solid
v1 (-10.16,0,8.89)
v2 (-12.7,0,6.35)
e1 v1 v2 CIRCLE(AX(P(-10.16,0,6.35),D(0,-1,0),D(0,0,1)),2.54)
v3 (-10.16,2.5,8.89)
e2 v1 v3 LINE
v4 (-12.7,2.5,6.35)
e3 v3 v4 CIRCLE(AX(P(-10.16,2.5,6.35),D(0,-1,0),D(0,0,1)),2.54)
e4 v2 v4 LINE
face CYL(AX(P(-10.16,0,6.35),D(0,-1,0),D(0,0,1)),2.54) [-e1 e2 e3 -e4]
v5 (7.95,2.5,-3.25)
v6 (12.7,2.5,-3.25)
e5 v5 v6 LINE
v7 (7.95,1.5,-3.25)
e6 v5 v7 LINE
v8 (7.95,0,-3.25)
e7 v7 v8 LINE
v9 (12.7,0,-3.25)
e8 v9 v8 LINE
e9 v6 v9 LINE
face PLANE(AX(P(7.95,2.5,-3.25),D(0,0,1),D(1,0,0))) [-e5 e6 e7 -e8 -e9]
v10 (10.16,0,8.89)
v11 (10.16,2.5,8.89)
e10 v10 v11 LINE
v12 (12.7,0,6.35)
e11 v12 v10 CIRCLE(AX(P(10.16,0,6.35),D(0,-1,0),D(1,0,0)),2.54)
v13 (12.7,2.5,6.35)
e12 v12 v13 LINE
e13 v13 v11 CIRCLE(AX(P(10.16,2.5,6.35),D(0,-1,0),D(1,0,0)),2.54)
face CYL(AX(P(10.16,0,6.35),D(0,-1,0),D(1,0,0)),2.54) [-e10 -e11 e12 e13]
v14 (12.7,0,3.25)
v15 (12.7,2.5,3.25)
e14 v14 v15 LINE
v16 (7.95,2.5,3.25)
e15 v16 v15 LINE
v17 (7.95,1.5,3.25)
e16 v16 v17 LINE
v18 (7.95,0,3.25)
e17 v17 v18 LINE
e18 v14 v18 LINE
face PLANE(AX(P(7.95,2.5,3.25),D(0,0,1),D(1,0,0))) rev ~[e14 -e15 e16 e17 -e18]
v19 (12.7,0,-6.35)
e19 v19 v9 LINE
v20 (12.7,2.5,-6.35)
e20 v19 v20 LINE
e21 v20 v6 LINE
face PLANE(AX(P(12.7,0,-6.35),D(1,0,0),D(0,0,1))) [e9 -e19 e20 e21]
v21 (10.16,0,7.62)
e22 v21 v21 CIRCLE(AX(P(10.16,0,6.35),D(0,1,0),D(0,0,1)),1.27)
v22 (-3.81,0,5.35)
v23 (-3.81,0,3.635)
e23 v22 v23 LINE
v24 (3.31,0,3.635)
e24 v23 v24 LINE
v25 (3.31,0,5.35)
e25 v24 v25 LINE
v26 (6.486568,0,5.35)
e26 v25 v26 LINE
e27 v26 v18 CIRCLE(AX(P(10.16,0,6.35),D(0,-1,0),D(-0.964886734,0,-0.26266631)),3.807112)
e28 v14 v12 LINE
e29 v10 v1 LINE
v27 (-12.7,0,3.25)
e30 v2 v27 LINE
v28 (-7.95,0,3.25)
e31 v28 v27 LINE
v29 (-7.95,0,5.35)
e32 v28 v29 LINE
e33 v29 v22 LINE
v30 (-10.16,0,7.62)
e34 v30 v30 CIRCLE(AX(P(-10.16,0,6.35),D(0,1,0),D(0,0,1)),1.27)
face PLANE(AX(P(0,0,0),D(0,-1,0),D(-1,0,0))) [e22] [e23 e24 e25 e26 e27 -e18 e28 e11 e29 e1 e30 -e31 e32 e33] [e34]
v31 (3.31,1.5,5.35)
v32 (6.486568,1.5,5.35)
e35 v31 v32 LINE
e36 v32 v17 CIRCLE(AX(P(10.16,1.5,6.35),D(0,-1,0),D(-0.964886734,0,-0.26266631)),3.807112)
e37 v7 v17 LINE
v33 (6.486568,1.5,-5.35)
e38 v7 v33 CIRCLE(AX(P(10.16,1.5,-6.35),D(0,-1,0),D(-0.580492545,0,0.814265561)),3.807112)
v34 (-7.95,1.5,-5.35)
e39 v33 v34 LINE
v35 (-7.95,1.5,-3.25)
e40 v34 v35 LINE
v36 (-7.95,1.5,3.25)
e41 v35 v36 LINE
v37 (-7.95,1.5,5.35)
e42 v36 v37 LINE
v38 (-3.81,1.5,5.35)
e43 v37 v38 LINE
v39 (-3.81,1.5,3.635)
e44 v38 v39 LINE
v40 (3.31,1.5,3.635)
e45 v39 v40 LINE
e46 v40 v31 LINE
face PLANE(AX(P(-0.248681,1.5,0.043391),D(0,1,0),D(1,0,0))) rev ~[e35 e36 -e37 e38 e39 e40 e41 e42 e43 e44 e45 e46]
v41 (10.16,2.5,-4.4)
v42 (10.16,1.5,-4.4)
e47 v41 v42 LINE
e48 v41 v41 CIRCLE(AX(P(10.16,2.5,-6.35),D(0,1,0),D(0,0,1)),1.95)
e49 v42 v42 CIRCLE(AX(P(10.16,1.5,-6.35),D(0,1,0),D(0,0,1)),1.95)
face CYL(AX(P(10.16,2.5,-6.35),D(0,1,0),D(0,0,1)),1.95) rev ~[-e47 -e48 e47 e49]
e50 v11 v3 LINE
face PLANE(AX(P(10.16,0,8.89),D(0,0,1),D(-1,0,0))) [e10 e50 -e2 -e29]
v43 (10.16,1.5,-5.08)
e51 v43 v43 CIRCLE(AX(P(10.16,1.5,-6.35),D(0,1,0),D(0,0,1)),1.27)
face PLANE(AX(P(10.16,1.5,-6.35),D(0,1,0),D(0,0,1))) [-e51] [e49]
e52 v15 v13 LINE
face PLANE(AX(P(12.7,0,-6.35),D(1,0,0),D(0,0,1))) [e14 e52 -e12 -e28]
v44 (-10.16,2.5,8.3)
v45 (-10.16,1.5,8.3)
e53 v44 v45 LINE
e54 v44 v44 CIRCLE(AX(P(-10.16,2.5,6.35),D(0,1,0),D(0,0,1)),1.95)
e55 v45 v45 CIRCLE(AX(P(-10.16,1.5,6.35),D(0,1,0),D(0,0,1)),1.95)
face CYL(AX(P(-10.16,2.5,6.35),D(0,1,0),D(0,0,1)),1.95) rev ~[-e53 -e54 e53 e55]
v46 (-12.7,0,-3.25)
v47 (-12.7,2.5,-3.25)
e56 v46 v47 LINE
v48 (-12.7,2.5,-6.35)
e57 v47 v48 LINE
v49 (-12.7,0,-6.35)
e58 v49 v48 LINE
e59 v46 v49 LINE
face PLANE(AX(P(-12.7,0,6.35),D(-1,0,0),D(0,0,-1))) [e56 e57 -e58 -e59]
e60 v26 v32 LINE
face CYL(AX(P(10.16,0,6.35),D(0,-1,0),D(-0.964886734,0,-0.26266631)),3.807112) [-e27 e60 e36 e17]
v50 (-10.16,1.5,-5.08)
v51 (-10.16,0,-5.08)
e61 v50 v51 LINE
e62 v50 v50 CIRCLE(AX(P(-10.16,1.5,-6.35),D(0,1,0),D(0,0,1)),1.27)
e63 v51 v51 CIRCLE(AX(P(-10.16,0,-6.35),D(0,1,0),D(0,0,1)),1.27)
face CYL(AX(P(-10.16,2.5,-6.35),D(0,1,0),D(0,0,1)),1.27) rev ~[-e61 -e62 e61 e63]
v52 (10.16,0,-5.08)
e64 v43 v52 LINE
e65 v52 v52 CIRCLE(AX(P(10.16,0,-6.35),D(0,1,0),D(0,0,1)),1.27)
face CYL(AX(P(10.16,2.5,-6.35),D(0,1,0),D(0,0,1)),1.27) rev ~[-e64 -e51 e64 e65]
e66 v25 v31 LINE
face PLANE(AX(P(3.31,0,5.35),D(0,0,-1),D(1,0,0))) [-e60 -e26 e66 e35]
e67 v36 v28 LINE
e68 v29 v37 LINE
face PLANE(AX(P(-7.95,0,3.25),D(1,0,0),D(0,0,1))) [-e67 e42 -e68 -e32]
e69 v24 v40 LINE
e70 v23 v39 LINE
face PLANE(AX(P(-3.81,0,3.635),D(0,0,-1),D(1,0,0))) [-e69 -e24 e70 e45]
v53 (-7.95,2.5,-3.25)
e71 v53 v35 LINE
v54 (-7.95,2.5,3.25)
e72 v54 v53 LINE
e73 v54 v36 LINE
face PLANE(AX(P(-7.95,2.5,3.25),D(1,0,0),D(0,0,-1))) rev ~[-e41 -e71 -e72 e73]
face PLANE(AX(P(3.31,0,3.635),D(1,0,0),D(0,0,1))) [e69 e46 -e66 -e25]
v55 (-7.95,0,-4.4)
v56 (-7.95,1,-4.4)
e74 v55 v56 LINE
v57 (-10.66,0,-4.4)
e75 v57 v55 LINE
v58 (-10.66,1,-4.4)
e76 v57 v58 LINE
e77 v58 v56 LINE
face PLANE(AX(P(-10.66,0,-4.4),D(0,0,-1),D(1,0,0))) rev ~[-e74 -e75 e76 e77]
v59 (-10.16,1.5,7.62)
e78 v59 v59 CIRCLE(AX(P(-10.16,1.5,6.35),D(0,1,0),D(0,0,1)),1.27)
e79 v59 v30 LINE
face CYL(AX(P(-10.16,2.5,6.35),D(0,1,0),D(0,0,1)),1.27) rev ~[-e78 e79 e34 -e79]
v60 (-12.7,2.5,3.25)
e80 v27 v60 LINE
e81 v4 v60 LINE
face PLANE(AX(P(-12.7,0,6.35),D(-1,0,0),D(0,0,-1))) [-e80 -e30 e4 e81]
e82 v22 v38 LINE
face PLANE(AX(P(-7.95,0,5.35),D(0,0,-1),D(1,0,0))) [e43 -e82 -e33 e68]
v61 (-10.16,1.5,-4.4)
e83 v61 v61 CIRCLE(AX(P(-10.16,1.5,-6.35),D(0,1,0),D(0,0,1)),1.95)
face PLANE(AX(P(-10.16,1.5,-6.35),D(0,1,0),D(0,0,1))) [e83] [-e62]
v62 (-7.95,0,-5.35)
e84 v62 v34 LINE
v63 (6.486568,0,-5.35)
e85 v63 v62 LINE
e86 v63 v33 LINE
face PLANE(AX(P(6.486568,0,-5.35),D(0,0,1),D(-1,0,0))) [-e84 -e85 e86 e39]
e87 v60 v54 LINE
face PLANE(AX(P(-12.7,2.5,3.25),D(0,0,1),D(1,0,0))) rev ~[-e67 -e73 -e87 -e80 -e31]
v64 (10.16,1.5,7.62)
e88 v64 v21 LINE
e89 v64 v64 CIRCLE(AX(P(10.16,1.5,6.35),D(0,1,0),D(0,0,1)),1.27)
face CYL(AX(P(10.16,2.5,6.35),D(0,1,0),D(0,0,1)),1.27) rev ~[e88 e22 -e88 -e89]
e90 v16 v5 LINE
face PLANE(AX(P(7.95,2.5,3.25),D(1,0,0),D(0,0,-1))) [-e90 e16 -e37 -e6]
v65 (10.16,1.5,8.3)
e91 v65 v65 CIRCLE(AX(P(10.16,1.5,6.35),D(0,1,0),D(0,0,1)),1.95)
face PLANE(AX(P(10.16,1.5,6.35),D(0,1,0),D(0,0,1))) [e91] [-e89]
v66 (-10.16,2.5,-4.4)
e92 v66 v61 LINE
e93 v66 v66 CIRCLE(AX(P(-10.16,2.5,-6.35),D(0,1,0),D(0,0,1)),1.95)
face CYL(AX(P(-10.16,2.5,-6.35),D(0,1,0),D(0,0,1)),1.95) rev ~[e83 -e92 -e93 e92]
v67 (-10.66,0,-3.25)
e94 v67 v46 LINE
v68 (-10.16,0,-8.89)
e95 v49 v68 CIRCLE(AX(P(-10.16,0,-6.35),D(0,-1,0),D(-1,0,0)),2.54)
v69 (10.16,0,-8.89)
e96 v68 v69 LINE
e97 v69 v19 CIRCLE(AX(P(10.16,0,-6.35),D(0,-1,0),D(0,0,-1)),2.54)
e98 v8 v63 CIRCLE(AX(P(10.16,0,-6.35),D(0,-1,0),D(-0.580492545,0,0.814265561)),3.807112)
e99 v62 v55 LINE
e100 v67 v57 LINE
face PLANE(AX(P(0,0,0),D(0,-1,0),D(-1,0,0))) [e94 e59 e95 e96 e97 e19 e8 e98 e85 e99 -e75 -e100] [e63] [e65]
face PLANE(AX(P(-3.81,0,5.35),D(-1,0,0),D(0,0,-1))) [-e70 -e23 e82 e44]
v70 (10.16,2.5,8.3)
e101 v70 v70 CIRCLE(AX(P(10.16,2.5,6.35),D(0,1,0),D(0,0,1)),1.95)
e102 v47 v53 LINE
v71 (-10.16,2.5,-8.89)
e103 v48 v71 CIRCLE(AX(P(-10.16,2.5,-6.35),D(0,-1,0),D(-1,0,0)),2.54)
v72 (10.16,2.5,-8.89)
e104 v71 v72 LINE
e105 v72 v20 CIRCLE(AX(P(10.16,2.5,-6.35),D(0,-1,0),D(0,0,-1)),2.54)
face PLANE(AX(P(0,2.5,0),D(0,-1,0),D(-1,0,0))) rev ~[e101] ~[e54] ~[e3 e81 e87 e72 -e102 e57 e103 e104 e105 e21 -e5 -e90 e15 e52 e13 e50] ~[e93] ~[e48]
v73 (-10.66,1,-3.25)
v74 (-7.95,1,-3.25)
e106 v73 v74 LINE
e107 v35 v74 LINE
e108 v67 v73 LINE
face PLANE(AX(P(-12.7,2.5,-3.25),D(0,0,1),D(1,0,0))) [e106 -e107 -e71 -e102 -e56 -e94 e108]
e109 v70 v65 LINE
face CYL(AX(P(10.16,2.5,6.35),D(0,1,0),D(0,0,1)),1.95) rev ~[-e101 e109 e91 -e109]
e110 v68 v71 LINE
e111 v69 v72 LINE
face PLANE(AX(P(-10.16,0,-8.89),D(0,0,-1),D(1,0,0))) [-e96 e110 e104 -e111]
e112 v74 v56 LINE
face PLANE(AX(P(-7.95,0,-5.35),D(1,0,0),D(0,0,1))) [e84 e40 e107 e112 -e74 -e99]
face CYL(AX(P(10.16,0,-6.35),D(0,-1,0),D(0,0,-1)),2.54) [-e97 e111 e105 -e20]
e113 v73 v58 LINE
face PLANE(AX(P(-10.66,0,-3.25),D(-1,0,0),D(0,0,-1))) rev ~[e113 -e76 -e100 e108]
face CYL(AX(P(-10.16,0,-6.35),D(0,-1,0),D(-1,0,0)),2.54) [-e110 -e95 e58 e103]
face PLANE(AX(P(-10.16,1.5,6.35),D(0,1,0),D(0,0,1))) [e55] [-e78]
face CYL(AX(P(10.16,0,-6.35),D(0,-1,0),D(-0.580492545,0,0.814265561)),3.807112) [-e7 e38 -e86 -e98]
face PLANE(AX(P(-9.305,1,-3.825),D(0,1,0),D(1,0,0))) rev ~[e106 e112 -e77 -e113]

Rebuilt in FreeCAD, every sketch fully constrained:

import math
import FreeCAD as App
import Part
import Sketcher
Q = App.Units.Quantity

doc = App.newDocument("Part")
params = doc.addObject("Spreadsheet::Sheet", "Params")
for row, (alias, value) in enumerate([
    ("sketch1_radius", "2.54 mm"),
    ("sketch1_height", "12.7 mm"),
    ("sketch1_width", "20.32 mm"),
    ("pad1_length", "2.5 mm"),
    ("sketch2_diameter", "2.54 mm"),
    ("sketch2_height", "6.5 mm"),
    ("sketch2_width", "4.75 mm"),
    ("sketch3_height", "6.5 mm"),
    ("sketch3_height2", "2.1 mm"),
    ("sketch3_width", "7.12 mm"),
    ("sketch3_width2", "4.75 mm"),
    ("sketch3_width3", "4.14 mm"),
    ("pocket2_length", "1.5 mm"),
    ("sketch4_diameter", "3.9 mm"),
    ("pocket3_length", "1 mm"),
    ("sketch5_width", "2.71 mm"),
    ("sketch5_height", "1.15 mm"),
    ("pocket4_length", "1 mm"),
], start=1):
    params.set(f"A{row}", alias)
    params.set(f"B{row}", "=" + value)
    params.setAlias(f"B{row}", alias)

body = doc.addObject("PartDesign::Body", "Body")

# Sketch on XZ plane
sketch1 = body.newObject("Sketcher::SketchObject", "Sketch")
sketch1.AttachmentSupport = (doc.getObject("XZ_Plane"), [""])
sketch1.MapMode = "FlatFace"
sketch1.addGeometry([
    Part.LineSegment(App.Vector(10.2, -8.9, 0), App.Vector(-10.2, -8.9, 0)),  # 0
    Part.ArcOfCircle(Part.Circle(App.Vector(-10.2, -6.3, 0), App.Vector(0, 0, 1), 2.5), math.radians(-180), math.radians(-90)),  # 1
    Part.LineSegment(App.Vector(-12.7, -6.3, 0), App.Vector(-12.7, 6.3, 0)),  # 2
    Part.ArcOfCircle(Part.Circle(App.Vector(-10.2, 6.3, 0), App.Vector(0, 0, 1), 2.5), math.radians(90), math.radians(180)),  # 3
    Part.LineSegment(App.Vector(-10.2, 8.9, 0), App.Vector(10.2, 8.9, 0)),  # 4
    Part.ArcOfCircle(Part.Circle(App.Vector(10.2, 6.3, 0), App.Vector(0, 0, 1), 2.5), math.radians(0), math.radians(90)),  # 5
    Part.LineSegment(App.Vector(12.7, 6.3, 0), App.Vector(12.7, -6.3, 0)),  # 6
    Part.ArcOfCircle(Part.Circle(App.Vector(10.2, -6.3, 0), App.Vector(0, 0, 1), 2.5), math.radians(-90), math.radians(0)),  # 7
], False)
sketch1.addConstraint([
    Sketcher.Constraint("Tangent", 0, 2, 1, 2),
    Sketcher.Constraint("Tangent", 1, 1, 2, 1),
    Sketcher.Constraint("Tangent", 2, 2, 3, 2),
    Sketcher.Constraint("Tangent", 3, 1, 4, 1),
    Sketcher.Constraint("Tangent", 4, 2, 5, 2),
    Sketcher.Constraint("Tangent", 5, 1, 6, 1),
    Sketcher.Constraint("Tangent", 6, 2, 7, 2),
    Sketcher.Constraint("Tangent", 7, 1, 0, 1),
    Sketcher.Constraint("Horizontal", 0),
    Sketcher.Constraint("Vertical", 2),
    Sketcher.Constraint("Horizontal", 4),
    Sketcher.Constraint("Vertical", 6),
    Sketcher.Constraint("Equal", 1, 3),
    Sketcher.Constraint("Equal", 3, 5),
    Sketcher.Constraint("Equal", 5, 7),
    Sketcher.Constraint("Symmetric", 1, 3, 5, 3, -1, 1),
    Sketcher.Constraint("Radius", 1, Q("2.54 mm")),
    Sketcher.Constraint("DistanceY", 2, 1, 2, 2, Q("12.7 mm")),
    Sketcher.Constraint("DistanceX", 0, 2, 0, 1, Q("20.32 mm")),
])
sketch1.setExpression("Constraints[16]", "Params.sketch1_radius")
sketch1.setExpression("Constraints[17]", "Params.sketch1_height")
sketch1.setExpression("Constraints[18]", "Params.sketch1_width")
pad1 = body.newObject("PartDesign::Pad", "Pad")
pad1.Profile = sketch1
pad1.setExpression("Length", "Params.pad1_length")
pad1.Reversed = True

# Sketch on XZ plane
sketch2 = body.newObject("Sketcher::SketchObject", "Sketch001")
sketch2.AttachmentSupport = (doc.getObject("XZ_Plane"), [""])
sketch2.MapMode = "FlatFace"
sketch2.AttachmentOffset = App.Placement(App.Vector(0, 0, -2.5), App.Rotation())
sketch2.addGeometry([
    Part.Circle(App.Vector(-10.2, -6.3, 0), App.Vector(0, 0, 1), 1.3),  # 0
    Part.Circle(App.Vector(10.2, -6.3, 0), App.Vector(0, 0, 1), 1.3),  # 1
    Part.Circle(App.Vector(10.2, 6.3, 0), App.Vector(0, 0, 1), 1.3),  # 2
    Part.Circle(App.Vector(-10.2, 6.3, 0), App.Vector(0, 0, 1), 1.3),  # 3
    Part.LineSegment(App.Vector(8, -3.2, 0), App.Vector(8, 3.2, 0)),  # 4
    Part.LineSegment(App.Vector(8, 3.2, 0), App.Vector(12.7, 3.2, 0)),  # 5
    Part.LineSegment(App.Vector(12.7, 3.2, 0), App.Vector(12.7, -3.2, 0)),  # 6
    Part.LineSegment(App.Vector(12.7, -3.2, 0), App.Vector(8, -3.2, 0)),  # 7
    Part.LineSegment(App.Vector(-12.7, -3.2, 0), App.Vector(-12.7, 3.2, 0)),  # 8
    Part.LineSegment(App.Vector(-12.7, 3.2, 0), App.Vector(-8, 3.2, 0)),  # 9
    Part.LineSegment(App.Vector(-8, 3.2, 0), App.Vector(-8, -3.2, 0)),  # 10
    Part.LineSegment(App.Vector(-8, -3.2, 0), App.Vector(-12.7, -3.2, 0)),  # 11
], False)
sketch2.addConstraint([
    Sketcher.Constraint("Coincident", 4, 2, 5, 1),
    Sketcher.Constraint("Coincident", 5, 2, 6, 1),
    Sketcher.Constraint("Coincident", 6, 2, 7, 1),
    Sketcher.Constraint("Coincident", 7, 2, 4, 1),
    Sketcher.Constraint("Coincident", 8, 2, 9, 1),
    Sketcher.Constraint("Coincident", 9, 2, 10, 1),
    Sketcher.Constraint("Coincident", 10, 2, 11, 1),
    Sketcher.Constraint("Coincident", 11, 2, 8, 1),
    Sketcher.Constraint("Vertical", 4),
    Sketcher.Constraint("Horizontal", 5),
    Sketcher.Constraint("Vertical", 6),
    Sketcher.Constraint("Horizontal", 7),
    Sketcher.Constraint("Vertical", 8),
    Sketcher.Constraint("Horizontal", 9),
    Sketcher.Constraint("Vertical", 10),
    Sketcher.Constraint("Horizontal", 11),
    Sketcher.Constraint("Equal", 0, 1),
    Sketcher.Constraint("Equal", 1, 2),
    Sketcher.Constraint("Equal", 2, 3),
    Sketcher.Constraint("Symmetric", 0, 3, 2, 3, -1, 1),
    Sketcher.Constraint("Symmetric", 1, 3, 3, 3, -1, 1),
    Sketcher.Constraint("Symmetric", 6, 2, 8, 2, -1, 1),
    Sketcher.Constraint("Symmetric", 4, 2, 10, 2, -1, 1),
    Sketcher.Constraint("Symmetric", 0, 3, 1, 3, -2),
    Sketcher.Constraint("Horizontal", 5, 2, 8, 2),
    Sketcher.Constraint("Diameter", 0, Q("2.54 mm")),
    Sketcher.Constraint("DistanceY", 4, 1, 4, 2, Q("6.5 mm")),
    Sketcher.Constraint("DistanceX", 5, 1, 5, 2, Q("4.75 mm")),
    Sketcher.Constraint("DistanceX", -1, 1, 5, 2, Q("12.7 mm")),
    Sketcher.Constraint("DistanceY", 1, 3, 2, 3, Q("12.7 mm")),
    Sketcher.Constraint("DistanceX", 0, 3, -1, 1, Q("10.16 mm")),
])
sketch2.setExpression("Constraints[25]", "Params.sketch2_diameter")
sketch2.setExpression("Constraints[26]", "Params.sketch2_height")
sketch2.setExpression("Constraints[27]", "Params.sketch2_width")
pocket1 = body.newObject("PartDesign::Pocket", "Pocket")
pocket1.Profile = sketch2
pocket1.Type = "ThroughAll"
pocket1.Reversed = True

# Sketch on XZ plane
sketch3 = body.newObject("Sketcher::SketchObject", "Sketch002")
sketch3.AttachmentSupport = (doc.getObject("XZ_Plane"), [""])
sketch3.MapMode = "FlatFace"
sketch3.addGeometry([
    Part.LineSegment(App.Vector(-3.8, 5.3, 0), App.Vector(-3.8, 3.6, 0)),  # 0
    Part.LineSegment(App.Vector(-3.8, 3.6, 0), App.Vector(3.3, 3.6, 0)),  # 1
    Part.LineSegment(App.Vector(3.3, 3.6, 0), App.Vector(3.3, 5.3, 0)),  # 2
    Part.LineSegment(App.Vector(3.3, 5.3, 0), App.Vector(6.5, 5.3, 0)),  # 3
    Part.ArcOfCircle(Part.Circle(App.Vector(10.2, 6.3, 0), App.Vector(0, 0, 1), 3.8), math.radians(-165), math.radians(-125)),  # 4
    Part.LineSegment(App.Vector(8, 3.2, 0), App.Vector(12.7, 3.2, 0)),  # 5
    Part.LineSegment(App.Vector(12.7, 3.2, 0), App.Vector(12.7, -3.2, 0)),  # 6
    Part.LineSegment(App.Vector(12.7, -3.2, 0), App.Vector(8, -3.2, 0)),  # 7
    Part.ArcOfCircle(Part.Circle(App.Vector(10.2, -6.3, 0), App.Vector(0, 0, 1), 3.8), math.radians(125), math.radians(165)),  # 8
    Part.LineSegment(App.Vector(6.5, -5.3, 0), App.Vector(-8, -5.3, 0)),  # 9
    Part.LineSegment(App.Vector(-8, -5.3, 0), App.Vector(-8, -3.2, 0)),  # 10
    Part.LineSegment(App.Vector(-8, -3.2, 0), App.Vector(-12.7, -3.2, 0)),  # 11
    Part.LineSegment(App.Vector(-12.7, -3.2, 0), App.Vector(-12.7, 3.2, 0)),  # 12
    Part.LineSegment(App.Vector(-12.7, 3.2, 0), App.Vector(-8, 3.2, 0)),  # 13
    Part.LineSegment(App.Vector(-8, 3.2, 0), App.Vector(-8, 5.3, 0)),  # 14
    Part.LineSegment(App.Vector(-8, 5.3, 0), App.Vector(-3.8, 5.3, 0)),  # 15
], False)
sketch3.addConstraint([
    Sketcher.Constraint("Coincident", 0, 2, 1, 1),
    Sketcher.Constraint("Coincident", 1, 2, 2, 1),
    Sketcher.Constraint("Coincident", 2, 2, 3, 1),
    Sketcher.Constraint("Coincident", 3, 2, 4, 1),
    Sketcher.Constraint("Coincident", 4, 2, 5, 1),
    Sketcher.Constraint("Coincident", 5, 2, 6, 1),
    Sketcher.Constraint("Coincident", 6, 2, 7, 1),
    Sketcher.Constraint("Coincident", 7, 2, 8, 1),
    Sketcher.Constraint("Coincident", 8, 2, 9, 1),
    Sketcher.Constraint("Coincident", 9, 2, 10, 1),
    Sketcher.Constraint("Coincident", 10, 2, 11, 1),
    Sketcher.Constraint("Coincident", 11, 2, 12, 1),
    Sketcher.Constraint("Coincident", 12, 2, 13, 1),
    Sketcher.Constraint("Coincident", 13, 2, 14, 1),
    Sketcher.Constraint("Coincident", 14, 2, 15, 1),
    Sketcher.Constraint("Coincident", 15, 2, 0, 1),
    Sketcher.Constraint("Vertical", 0),
    Sketcher.Constraint("Horizontal", 1),
    Sketcher.Constraint("Vertical", 2),
    Sketcher.Constraint("Horizontal", 3),
    Sketcher.Constraint("Horizontal", 5),
    Sketcher.Constraint("Vertical", 6),
    Sketcher.Constraint("Horizontal", 7),
    Sketcher.Constraint("Horizontal", 9),
    Sketcher.Constraint("Vertical", 10),
    Sketcher.Constraint("Horizontal", 11),
    Sketcher.Constraint("Vertical", 12),
    Sketcher.Constraint("Horizontal", 13),
    Sketcher.Constraint("Vertical", 14),
    Sketcher.Constraint("Horizontal", 15),
    Sketcher.Constraint("Equal", 4, 8),
    Sketcher.Constraint("Symmetric", 4, 2, 10, 2, -1, 1),
    Sketcher.Constraint("Symmetric", 6, 2, 12, 2, -1, 1),
    Sketcher.Constraint("Symmetric", 7, 2, 10, 2, -2),
    Sketcher.Constraint("Symmetric", 3, 2, 8, 2, -1),
    Sketcher.Constraint("Symmetric", 9, 2, 14, 2, -1),
    Sketcher.Constraint("DistanceY", 6, 2, 6, 1, Q("6.5 mm")),
    Sketcher.Constraint("DistanceY", 10, 1, 10, 2, Q("2.1 mm")),
    Sketcher.Constraint("DistanceY", 2, 2, 4, 3, Q("1 mm")),
    Sketcher.Constraint("DistanceX", 1, 1, 1, 2, Q("7.12 mm")),
    Sketcher.Constraint("DistanceX", 5, 1, 5, 2, Q("4.75 mm")),
    Sketcher.Constraint("DistanceX", 15, 1, 15, 2, Q("4.14 mm")),
    Sketcher.Constraint("DistanceX", -1, 1, 5, 2, Q("12.7 mm")),
    Sketcher.Constraint("DistanceY", 0, 2, 0, 1, Q("1.715 mm")),
    Sketcher.Constraint("DistanceX", -1, 1, 4, 3, Q("10.16 mm")),
])
sketch3.setExpression("Constraints[36]", "Params.sketch3_height")
sketch3.setExpression("Constraints[37]", "Params.sketch3_height2")
sketch3.setExpression("Constraints[39]", "Params.sketch3_width")
sketch3.setExpression("Constraints[40]", "Params.sketch3_width2")
sketch3.setExpression("Constraints[41]", "Params.sketch3_width3")
pocket2 = body.newObject("PartDesign::Pocket", "Pocket001")
pocket2.Profile = sketch3
pocket2.setExpression("Length", "Params.pocket2_length")

# Sketch on XZ plane
sketch4 = body.newObject("Sketcher::SketchObject", "Sketch003")
sketch4.AttachmentSupport = (doc.getObject("XZ_Plane"), [""])
sketch4.MapMode = "FlatFace"
sketch4.AttachmentOffset = App.Placement(App.Vector(0, 0, -2.5), App.Rotation())
sketch4.addGeometry([
    Part.Circle(App.Vector(-10.2, -6.3, 0), App.Vector(0, 0, 1), 1.9),
    Part.Circle(App.Vector(10.2, -6.3, 0), App.Vector(0, 0, 1), 1.9),
    Part.Circle(App.Vector(-10.2, 6.3, 0), App.Vector(0, 0, 1), 1.9),
    Part.Circle(App.Vector(10.2, 6.3, 0), App.Vector(0, 0, 1), 1.9),
], False)
sketch4.addConstraint([
    Sketcher.Constraint("Equal", 0, 1),
    Sketcher.Constraint("Equal", 1, 2),
    Sketcher.Constraint("Equal", 2, 3),
    Sketcher.Constraint("Symmetric", 1, 3, 2, 3, -1, 1),
    Sketcher.Constraint("Symmetric", 0, 3, 3, 3, -1, 1),
    Sketcher.Constraint("Symmetric", 0, 3, 1, 3, -2),
    Sketcher.Constraint("Diameter", 0, Q("3.9 mm")),
    Sketcher.Constraint("DistanceY", 0, 3, 2, 3, Q("12.7 mm")),
    Sketcher.Constraint("DistanceX", 0, 3, -1, 1, Q("10.16 mm")),
])
sketch4.setExpression("Constraints[6]", "Params.sketch4_diameter")
pocket3 = body.newObject("PartDesign::Pocket", "Pocket002")
pocket3.Profile = sketch4
pocket3.setExpression("Length", "Params.pocket3_length")
pocket3.Reversed = True

# Sketch on XZ plane
sketch5 = body.newObject("Sketcher::SketchObject", "Sketch004")
sketch5.AttachmentSupport = (doc.getObject("XZ_Plane"), [""])
sketch5.MapMode = "FlatFace"
sketch5.addGeometry([
    Part.LineSegment(App.Vector(-10.7, -4.4, 0), App.Vector(-10.7, -3.2, 0)),
    Part.LineSegment(App.Vector(-10.7, -3.2, 0), App.Vector(-8, -3.2, 0)),
    Part.LineSegment(App.Vector(-8, -3.2, 0), App.Vector(-8, -4.4, 0)),
    Part.LineSegment(App.Vector(-8, -4.4, 0), App.Vector(-10.7, -4.4, 0)),
], False)
sketch5.addConstraint([
    Sketcher.Constraint("Coincident", 0, 2, 1, 1),
    Sketcher.Constraint("Coincident", 1, 2, 2, 1),
    Sketcher.Constraint("Coincident", 2, 2, 3, 1),
    Sketcher.Constraint("Coincident", 3, 2, 0, 1),
    Sketcher.Constraint("Vertical", 0),
    Sketcher.Constraint("Horizontal", 1),
    Sketcher.Constraint("Vertical", 2),
    Sketcher.Constraint("Horizontal", 3),
    Sketcher.Constraint("DistanceX", 1, 1, 1, 2, Q("2.71 mm")),
    Sketcher.Constraint("DistanceY", 0, 1, 0, 2, Q("1.15 mm")),
    Sketcher.Constraint("DistanceY", 2, 2, -1, 1, Q("4.4 mm")),
    Sketcher.Constraint("DistanceX", 0, 2, -1, 1, Q("10.66 mm")),
])
sketch5.setExpression("Constraints[8]", "Params.sketch5_width")
sketch5.setExpression("Constraints[9]", "Params.sketch5_height")
pocket4 = body.newObject("PartDesign::Pocket", "Pocket003")
pocket4.Profile = sketch5
pocket4.setExpression("Length", "Params.pocket4_length")

doc.recompute()
